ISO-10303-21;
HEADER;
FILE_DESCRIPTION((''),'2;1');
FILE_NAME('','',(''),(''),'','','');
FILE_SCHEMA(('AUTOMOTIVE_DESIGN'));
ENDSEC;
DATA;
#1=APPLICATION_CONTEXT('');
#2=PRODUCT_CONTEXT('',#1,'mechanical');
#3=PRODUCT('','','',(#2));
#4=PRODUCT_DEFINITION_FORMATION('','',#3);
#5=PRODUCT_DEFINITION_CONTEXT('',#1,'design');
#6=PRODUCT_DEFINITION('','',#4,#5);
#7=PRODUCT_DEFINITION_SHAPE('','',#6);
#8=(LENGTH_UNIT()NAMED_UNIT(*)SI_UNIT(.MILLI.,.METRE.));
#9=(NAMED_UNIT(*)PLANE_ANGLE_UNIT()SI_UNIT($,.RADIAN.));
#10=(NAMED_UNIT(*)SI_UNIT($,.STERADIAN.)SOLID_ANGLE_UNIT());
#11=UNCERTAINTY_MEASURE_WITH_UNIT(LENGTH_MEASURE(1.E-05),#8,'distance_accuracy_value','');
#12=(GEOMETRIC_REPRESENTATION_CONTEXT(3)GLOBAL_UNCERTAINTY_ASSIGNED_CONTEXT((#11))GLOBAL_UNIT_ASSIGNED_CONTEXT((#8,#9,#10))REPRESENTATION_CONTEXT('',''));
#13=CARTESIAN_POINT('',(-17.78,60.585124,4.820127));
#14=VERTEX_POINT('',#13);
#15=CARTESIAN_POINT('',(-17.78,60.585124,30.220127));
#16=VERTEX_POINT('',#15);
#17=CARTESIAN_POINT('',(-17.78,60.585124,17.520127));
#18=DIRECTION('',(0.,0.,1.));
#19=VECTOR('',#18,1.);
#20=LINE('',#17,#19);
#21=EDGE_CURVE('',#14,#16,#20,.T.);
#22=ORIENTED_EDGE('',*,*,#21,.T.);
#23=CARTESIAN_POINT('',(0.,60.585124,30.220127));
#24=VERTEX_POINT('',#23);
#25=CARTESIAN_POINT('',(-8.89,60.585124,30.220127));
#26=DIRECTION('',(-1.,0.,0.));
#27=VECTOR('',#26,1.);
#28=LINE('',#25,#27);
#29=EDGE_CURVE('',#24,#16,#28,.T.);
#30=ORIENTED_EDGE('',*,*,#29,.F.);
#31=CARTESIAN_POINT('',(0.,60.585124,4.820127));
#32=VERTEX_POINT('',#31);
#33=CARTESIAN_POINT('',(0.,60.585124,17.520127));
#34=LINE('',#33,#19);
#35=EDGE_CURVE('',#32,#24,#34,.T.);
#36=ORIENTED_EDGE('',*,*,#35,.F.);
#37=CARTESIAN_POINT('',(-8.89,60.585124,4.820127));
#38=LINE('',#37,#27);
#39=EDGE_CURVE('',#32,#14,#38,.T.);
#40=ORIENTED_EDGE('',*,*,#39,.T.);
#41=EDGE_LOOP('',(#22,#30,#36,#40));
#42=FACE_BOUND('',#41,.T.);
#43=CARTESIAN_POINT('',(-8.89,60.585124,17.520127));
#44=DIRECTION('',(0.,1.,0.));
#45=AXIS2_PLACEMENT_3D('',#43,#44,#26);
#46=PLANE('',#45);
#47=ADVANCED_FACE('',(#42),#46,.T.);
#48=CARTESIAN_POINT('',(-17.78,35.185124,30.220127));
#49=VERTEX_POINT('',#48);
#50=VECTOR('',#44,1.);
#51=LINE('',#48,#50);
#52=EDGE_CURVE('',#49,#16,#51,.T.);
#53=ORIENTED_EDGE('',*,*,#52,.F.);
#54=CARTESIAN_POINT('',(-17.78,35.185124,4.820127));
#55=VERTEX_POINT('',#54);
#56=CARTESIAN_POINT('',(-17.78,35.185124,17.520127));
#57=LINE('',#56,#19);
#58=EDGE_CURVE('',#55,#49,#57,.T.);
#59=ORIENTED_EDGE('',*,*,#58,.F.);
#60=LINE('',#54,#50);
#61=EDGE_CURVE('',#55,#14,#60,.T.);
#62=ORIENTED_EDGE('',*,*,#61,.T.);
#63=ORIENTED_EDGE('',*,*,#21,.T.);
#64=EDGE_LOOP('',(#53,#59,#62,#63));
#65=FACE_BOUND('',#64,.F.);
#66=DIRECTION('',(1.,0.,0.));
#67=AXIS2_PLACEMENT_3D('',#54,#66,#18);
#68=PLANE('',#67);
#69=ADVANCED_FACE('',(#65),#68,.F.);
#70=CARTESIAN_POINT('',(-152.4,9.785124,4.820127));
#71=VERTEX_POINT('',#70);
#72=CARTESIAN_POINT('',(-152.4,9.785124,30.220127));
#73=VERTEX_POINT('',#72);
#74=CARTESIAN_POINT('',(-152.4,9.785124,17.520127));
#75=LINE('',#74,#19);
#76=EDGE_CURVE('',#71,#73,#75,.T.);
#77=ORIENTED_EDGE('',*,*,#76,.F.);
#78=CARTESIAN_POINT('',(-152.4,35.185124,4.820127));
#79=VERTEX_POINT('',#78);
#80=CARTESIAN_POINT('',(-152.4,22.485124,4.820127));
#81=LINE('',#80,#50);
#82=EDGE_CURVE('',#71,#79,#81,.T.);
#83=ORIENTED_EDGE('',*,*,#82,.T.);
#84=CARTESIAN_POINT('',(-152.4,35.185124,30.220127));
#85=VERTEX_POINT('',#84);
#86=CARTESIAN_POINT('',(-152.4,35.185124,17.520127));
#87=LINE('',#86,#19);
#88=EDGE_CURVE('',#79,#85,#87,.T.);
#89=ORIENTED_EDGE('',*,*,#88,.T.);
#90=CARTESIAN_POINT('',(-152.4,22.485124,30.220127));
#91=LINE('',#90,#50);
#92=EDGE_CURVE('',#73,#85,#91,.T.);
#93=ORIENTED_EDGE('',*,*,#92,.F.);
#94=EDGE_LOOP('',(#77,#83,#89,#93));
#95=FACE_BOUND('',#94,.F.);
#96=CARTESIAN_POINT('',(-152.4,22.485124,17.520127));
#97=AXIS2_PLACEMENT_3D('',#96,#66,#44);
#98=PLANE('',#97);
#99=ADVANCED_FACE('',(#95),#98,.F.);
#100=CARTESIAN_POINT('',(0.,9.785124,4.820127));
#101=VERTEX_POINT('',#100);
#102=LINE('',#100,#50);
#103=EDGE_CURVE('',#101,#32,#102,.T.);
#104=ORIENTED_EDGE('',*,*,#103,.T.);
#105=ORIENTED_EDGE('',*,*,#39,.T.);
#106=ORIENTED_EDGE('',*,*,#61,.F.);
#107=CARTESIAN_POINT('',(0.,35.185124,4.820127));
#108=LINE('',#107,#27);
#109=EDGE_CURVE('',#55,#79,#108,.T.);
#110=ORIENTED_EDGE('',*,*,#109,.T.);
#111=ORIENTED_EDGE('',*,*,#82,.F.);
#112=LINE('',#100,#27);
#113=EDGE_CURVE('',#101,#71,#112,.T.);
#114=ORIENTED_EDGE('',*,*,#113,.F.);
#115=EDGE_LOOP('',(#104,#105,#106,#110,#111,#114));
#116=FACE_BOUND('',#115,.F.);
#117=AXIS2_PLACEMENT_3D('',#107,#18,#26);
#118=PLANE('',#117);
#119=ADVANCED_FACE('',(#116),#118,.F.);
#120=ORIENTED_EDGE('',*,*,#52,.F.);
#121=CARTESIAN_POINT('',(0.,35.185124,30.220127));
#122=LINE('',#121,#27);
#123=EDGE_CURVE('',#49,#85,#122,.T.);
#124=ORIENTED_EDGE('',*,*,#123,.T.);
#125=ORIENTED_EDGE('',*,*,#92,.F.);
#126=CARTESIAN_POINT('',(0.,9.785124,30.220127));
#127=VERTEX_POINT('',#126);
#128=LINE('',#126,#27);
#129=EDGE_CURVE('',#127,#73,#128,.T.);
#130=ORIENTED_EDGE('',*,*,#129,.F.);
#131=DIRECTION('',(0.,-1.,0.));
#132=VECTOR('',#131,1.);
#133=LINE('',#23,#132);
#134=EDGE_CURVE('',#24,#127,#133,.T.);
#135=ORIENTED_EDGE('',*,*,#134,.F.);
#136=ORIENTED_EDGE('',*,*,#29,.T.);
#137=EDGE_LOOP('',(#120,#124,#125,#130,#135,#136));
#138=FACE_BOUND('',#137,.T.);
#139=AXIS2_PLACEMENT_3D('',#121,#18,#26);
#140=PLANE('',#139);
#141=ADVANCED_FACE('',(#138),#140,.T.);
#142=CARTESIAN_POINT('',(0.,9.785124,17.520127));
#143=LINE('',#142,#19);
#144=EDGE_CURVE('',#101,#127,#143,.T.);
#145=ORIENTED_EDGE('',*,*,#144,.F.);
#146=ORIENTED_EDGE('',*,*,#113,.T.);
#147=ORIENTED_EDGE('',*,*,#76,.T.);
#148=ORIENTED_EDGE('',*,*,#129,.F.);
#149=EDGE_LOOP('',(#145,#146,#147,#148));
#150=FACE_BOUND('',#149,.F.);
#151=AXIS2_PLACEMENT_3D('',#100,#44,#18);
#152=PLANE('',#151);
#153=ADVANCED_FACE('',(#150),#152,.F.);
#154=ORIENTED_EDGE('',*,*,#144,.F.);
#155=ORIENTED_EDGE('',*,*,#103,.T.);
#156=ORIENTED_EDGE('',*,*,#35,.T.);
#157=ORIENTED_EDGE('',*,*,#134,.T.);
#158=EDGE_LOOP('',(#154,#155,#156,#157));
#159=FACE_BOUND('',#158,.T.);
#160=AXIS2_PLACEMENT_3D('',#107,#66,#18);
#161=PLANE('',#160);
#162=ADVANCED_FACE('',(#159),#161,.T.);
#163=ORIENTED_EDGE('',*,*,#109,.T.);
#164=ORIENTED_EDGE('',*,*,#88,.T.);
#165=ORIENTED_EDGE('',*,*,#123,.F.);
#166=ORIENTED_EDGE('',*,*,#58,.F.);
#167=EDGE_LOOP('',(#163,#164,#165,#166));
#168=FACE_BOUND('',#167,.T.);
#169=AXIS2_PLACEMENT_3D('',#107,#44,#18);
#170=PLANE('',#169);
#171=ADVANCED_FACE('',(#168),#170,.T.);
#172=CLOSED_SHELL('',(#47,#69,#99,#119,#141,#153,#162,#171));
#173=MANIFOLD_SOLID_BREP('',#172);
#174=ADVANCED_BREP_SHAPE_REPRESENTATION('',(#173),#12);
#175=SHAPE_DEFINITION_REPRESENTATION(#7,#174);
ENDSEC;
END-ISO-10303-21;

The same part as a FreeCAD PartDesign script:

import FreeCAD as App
import Part
import Sketcher
Q = App.Units.Quantity


def add_polygon(sketch, points):
    """Adds a closed chain of lines whose ends are joined by coincident constraints."""
    first, n = sketch.GeometryCount, len(points)
    for a, b in zip(points, points[1:] + points[:1]):
        sketch.addGeometry(Part.LineSegment(App.Vector(*a, 0), App.Vector(*b, 0)), False)
    for i in range(n):
        sketch.addConstraint(Sketcher.Constraint("Coincident", first + i, 2, first + (i + 1) % n, 1))

doc = App.newDocument("Part")
params = doc.addObject("Spreadsheet::Sheet", "Params")
for row, (alias, value) in enumerate([
    ("sketch1_width", "1 in"),
    ("pad1_length", "6 in"),
    ("sketch2_height", "1 in"),
    ("sketch2_width", "0.7 in"),
    ("pad2_length", "1 in"),
], start=1):
    params.set(f"A{row}", alias)
    params.set(f"B{row}", "=" + value)
    params.setAlias(f"B{row}", alias)

body = doc.addObject("PartDesign::Body", "Body")

# Sketch on YZ plane
sketch1 = body.newObject("Sketcher::SketchObject", "Sketch")
sketch1.AttachmentSupport = (doc.getObject("YZ_Plane"), [""])
sketch1.MapMode = "FlatFace"
add_polygon(sketch1, [(10, 30), (10, 5), (35, 5), (35, 30)])  # lines 0-3
sketch1.addConstraint([
    Sketcher.Constraint("Vertical", 0),
    Sketcher.Constraint("Horizontal", 1),
    Sketcher.Constraint("Vertical", 2),
    Sketcher.Constraint("Horizontal", 3),
    Sketcher.Constraint("Equal", 3, 0),
    Sketcher.Constraint("DistanceX", 1, 1, 1, 2, Q("1 in")),
    Sketcher.Constraint("DistanceX", -1, 1, 0, 2, Q("9.785124 mm")),
    Sketcher.Constraint("DistanceY", -1, 1, 0, 2, Q("4.820127 mm")),
])
sketch1.setExpression("Constraints[9]", "Params.sketch1_width")
pad1 = body.newObject("PartDesign::Pad", "Pad")
pad1.Profile = sketch1
pad1.setExpression("Length", "Params.pad1_length")
pad1.Reversed = True

# Sketch on XZ plane
sketch2 = body.newObject("Sketcher::SketchObject", "Sketch001")
sketch2.AttachmentSupport = (doc.getObject("XZ_Plane"), [""])
sketch2.MapMode = "FlatFace"
sketch2.AttachmentOffset = App.Placement(App.Vector(0, 0, -35.185124), App.Rotation())
add_polygon(sketch2, [(0, 30), (0, 5), (-18, 5), (-18, 30)])  # lines 0-3
sketch2.addConstraint([
    Sketcher.Constraint("Vertical", 0),
    Sketcher.Constraint("Horizontal", 1),
    Sketcher.Constraint("Vertical", 2),
    Sketcher.Constraint("Horizontal", 3),
    Sketcher.Constraint("PointOnObject", 0, 2, -2),
    Sketcher.Constraint("DistanceY", 0, 2, 0, 1, Q("1 in")),
    Sketcher.Constraint("DistanceX", 1, 2, 1, 1, Q("0.7 in")),
    Sketcher.Constraint("DistanceY", -1, 1, 0, 2, Q("4.820127 mm")),
])
sketch2.setExpression("Constraints[9]", "Params.sketch2_height")
sketch2.setExpression("Constraints[10]", "Params.sketch2_width")
pad2 = body.newObject("PartDesign::Pad", "Pad001")
pad2.Profile = sketch2
pad2.setExpression("Length", "Params.pad2_length")
pad2.Reversed = True

doc.recompute()
